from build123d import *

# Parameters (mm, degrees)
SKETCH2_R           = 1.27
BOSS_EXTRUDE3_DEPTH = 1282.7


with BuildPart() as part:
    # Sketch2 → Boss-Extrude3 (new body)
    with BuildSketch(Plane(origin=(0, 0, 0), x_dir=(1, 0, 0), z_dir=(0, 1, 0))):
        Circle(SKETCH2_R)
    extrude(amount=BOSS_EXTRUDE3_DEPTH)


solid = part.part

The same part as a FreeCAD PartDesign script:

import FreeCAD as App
import Part
import Sketcher
from FreeCAD import Vector
Q = App.Units.Quantity

doc = App.newDocument("Part")
body = doc.addObject("PartDesign::Body", "Body")

# Sketch on XZ plane
sketch1 = body.newObject("Sketcher::SketchObject", "Sketch")
sketch1.AttachmentSupport = (doc.getObject("XZ_Plane"), [""])
sketch1.MapMode = "FlatFace"
sketch1.addGeometry(Part.Circle(Vector(0, 0, 0), Vector(0, 0, 1), 1.27), False)
sketch1.addConstraint([
    Sketcher.Constraint("Coincident", 0, 3, -1, 1),
    Sketcher.Constraint("Diameter", 0, Q("0.1 in")),
])
pad1 = body.newObject("PartDesign::Pad", "Pad")
pad1.Profile = sketch1
pad1.Length = Q("50.5 in")
pad1.Reversed = True

doc.recompute()
